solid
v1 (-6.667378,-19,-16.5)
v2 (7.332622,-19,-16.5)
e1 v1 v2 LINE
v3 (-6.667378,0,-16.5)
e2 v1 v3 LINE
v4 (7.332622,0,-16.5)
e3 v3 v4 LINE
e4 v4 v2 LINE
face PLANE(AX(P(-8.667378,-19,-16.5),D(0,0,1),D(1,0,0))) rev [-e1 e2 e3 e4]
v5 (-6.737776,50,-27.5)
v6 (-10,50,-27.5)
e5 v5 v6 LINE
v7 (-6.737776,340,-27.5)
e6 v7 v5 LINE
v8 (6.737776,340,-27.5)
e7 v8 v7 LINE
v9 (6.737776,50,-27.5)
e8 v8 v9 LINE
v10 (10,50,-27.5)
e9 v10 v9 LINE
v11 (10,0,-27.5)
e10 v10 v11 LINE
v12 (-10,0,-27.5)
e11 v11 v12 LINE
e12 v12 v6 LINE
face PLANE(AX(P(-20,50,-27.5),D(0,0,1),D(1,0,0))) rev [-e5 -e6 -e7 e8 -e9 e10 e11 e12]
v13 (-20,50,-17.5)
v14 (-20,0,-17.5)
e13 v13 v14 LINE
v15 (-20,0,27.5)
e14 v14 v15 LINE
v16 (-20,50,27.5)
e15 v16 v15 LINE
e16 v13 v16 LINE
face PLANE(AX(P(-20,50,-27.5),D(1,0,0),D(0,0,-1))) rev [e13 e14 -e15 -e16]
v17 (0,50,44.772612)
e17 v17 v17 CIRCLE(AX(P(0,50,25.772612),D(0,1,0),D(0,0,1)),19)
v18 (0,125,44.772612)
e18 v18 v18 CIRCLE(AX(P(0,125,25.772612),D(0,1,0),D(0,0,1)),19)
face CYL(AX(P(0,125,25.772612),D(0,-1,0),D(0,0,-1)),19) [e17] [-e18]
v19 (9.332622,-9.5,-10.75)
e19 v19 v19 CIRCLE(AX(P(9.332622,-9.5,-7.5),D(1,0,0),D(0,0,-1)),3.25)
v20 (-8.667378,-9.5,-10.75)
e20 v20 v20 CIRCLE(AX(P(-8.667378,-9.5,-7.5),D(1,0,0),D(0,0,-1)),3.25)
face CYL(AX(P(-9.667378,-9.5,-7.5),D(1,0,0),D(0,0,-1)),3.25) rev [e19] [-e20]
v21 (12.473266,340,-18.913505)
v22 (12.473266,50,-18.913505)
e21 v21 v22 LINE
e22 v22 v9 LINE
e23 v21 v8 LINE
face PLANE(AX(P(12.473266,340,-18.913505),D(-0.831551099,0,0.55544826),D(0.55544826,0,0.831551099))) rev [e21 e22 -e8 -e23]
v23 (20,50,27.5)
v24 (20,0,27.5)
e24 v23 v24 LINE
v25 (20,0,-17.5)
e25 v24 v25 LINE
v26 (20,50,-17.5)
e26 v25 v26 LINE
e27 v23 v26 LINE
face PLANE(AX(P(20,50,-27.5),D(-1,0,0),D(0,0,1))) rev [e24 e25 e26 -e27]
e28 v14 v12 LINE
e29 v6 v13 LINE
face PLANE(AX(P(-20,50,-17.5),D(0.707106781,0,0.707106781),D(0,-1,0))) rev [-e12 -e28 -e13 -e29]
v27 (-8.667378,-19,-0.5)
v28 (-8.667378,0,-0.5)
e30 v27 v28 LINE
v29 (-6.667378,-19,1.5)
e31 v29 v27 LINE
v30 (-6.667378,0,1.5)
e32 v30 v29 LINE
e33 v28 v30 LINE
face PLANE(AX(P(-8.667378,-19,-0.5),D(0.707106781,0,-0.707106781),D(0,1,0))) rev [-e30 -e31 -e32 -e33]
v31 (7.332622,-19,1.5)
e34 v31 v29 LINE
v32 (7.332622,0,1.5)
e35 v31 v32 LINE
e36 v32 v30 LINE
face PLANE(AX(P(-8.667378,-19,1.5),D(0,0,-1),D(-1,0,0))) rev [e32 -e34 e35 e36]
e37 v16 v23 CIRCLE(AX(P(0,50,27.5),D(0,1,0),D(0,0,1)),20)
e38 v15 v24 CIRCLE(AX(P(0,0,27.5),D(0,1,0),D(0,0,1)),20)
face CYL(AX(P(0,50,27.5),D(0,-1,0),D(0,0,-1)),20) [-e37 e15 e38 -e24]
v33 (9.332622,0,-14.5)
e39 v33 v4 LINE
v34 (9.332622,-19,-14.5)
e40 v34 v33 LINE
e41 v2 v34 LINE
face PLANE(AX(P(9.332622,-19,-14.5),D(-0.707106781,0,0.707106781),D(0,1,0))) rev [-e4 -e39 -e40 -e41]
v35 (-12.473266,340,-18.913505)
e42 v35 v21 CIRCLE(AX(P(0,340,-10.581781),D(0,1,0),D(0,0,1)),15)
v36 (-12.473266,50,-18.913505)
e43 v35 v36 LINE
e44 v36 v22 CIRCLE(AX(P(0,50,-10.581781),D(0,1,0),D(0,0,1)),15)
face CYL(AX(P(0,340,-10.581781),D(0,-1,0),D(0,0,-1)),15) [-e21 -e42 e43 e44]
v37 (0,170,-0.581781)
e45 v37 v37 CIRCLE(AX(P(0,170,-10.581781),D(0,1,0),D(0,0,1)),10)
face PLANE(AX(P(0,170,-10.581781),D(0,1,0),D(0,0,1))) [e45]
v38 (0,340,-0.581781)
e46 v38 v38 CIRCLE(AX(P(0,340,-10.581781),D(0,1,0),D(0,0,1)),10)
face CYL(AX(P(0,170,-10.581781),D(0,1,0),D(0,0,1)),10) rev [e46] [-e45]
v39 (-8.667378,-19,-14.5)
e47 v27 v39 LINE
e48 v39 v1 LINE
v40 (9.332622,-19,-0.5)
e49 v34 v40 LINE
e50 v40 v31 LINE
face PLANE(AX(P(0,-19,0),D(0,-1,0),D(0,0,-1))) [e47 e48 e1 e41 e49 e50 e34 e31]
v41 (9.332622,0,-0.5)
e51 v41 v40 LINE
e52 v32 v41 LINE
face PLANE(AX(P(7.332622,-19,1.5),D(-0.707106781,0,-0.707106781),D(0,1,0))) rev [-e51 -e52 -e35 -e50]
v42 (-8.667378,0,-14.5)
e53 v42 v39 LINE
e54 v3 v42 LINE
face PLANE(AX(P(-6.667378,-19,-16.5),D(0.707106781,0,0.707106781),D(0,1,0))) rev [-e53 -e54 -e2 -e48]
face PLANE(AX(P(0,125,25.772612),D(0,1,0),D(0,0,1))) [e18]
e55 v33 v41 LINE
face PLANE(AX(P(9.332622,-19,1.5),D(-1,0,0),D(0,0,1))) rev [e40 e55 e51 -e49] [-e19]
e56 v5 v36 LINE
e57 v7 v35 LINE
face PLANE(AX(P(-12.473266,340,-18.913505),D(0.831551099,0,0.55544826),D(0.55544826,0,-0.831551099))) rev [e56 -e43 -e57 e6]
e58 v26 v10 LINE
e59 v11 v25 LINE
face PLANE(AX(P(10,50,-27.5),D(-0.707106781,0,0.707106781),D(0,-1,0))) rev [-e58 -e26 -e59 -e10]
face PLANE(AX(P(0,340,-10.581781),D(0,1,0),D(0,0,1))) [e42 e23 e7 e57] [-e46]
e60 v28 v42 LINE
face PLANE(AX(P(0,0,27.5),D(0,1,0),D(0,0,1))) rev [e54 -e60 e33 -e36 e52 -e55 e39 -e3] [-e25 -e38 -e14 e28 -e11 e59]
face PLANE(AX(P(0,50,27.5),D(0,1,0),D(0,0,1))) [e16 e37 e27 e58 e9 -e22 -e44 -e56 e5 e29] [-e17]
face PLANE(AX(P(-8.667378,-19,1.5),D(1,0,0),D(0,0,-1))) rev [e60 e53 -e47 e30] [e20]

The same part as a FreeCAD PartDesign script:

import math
import FreeCAD as App
import Part
import Sketcher
Q = App.Units.Quantity


def edges_at(feature, points):
    """Names of the edges that pass closest to the given points."""
    edges = feature.Shape.Edges
    near = lambda p: min(range(len(edges)), key=lambda i: edges[i].distToShape(Part.Vertex(*p))[0])
    return sorted({f"Edge{near(p) + 1}" for p in points})


def add_polygon(sketch, points):
    """Adds a closed chain of lines whose ends are joined by coincident constraints."""
    first, n = sketch.GeometryCount, len(points)
    for a, b in zip(points, points[1:] + points[:1]):
        sketch.addGeometry(Part.LineSegment(App.Vector(*a, 0), App.Vector(*b, 0)), False)
    for i in range(n):
        sketch.addConstraint(Sketcher.Constraint("Coincident", first + i, 2, first + (i + 1) % n, 1))

doc = App.newDocument("Part")
body = doc.addObject("PartDesign::Body", "Body")

# Sketch on XZ plane
sketch1 = body.newObject("Sketcher::SketchObject", "Sketch")
sketch1.AttachmentSupport = (doc.getObject("XZ_Plane"), [""])
sketch1.MapMode = "FlatFace"
sketch1.addGeometry([
    Part.LineSegment(App.Vector(20, -27.5, 0), App.Vector(-20, -27.5, 0)),
    Part.LineSegment(App.Vector(-20, -27.5, 0), App.Vector(-20, 27.5, 0)),
    Part.ArcOfCircle(Part.Circle(App.Vector(0, 27.5, 0), App.Vector(0, 0, 1), 20), math.radians(0), math.radians(180)),
    Part.LineSegment(App.Vector(20, 27.5, 0), App.Vector(20, -27.5, 0)),
], False)
sketch1.addConstraint([
    Sketcher.Constraint("Coincident", 0, 2, 1, 1),
    Sketcher.Constraint("Tangent", 1, 2, 2, 2),
    Sketcher.Constraint("Tangent", 2, 1, 3, 1),
    Sketcher.Constraint("Coincident", 3, 2, 0, 1),
    Sketcher.Constraint("Horizontal", 0),
    Sketcher.Constraint("Vertical", 1),
    Sketcher.Constraint("Vertical", 3),
    Sketcher.Constraint("Symmetric", 0, 2, 2, 1, -1, 1),
    Sketcher.Constraint("Radius", 2, Q("20 mm")),
    Sketcher.Constraint("DistanceY", 1, 1, 1, 2, Q("55 mm")),
])
pad1 = body.newObject("PartDesign::Pad", "Pad")
pad1.Profile = sketch1
pad1.Length = 50
pad1.Reversed = True

# Sketch on XZ plane
sketch2 = body.newObject("Sketcher::SketchObject", "Sketch001")
sketch2.AttachmentSupport = (doc.getObject("XZ_Plane"), [""])
sketch2.MapMode = "FlatFace"
sketch2.AttachmentOffset = App.Placement(App.Vector(0, 0, -50), App.Rotation())
sketch2.addGeometry(Part.Circle(App.Vector(0, 25.772612, 0), App.Vector(0, 0, 1), 19), False)
sketch2.addConstraint([
    Sketcher.Constraint("PointOnObject", 0, 3, -2),
    Sketcher.Constraint("Diameter", 0, Q("38 mm")),
    Sketcher.Constraint("DistanceY", -1, 1, 0, 3, Q("25.772612 mm")),
])
pad2 = body.newObject("PartDesign::Pad", "Pad001")
pad2.Profile = sketch2
pad2.Length = 75
pad2.Reversed = True

# Sketch on XZ plane
sketch3 = body.newObject("Sketcher::SketchObject", "Sketch002")
sketch3.AttachmentSupport = (doc.getObject("XZ_Plane"), [""])
sketch3.MapMode = "FlatFace"
sketch3.AttachmentOffset = App.Placement(App.Vector(0, 0, -50), App.Rotation())
sketch3.addGeometry([
    Part.LineSegment(App.Vector(-6.737776, -27.5, 0), App.Vector(-12.473266, -18.913505, 0)),
    Part.ArcOfCircle(Part.Circle(App.Vector(0, -10.581781, 0), App.Vector(0, 0, 1), 15), math.radians(-33.741595), math.radians(213.741595)),
    Part.LineSegment(App.Vector(12.473266, -18.913505, 0), App.Vector(6.737776, -27.5, 0)),
    Part.LineSegment(App.Vector(6.737776, -27.5, 0), App.Vector(-6.737776, -27.5, 0)),
], False)
sketch3.addConstraint([
    Sketcher.Constraint("Tangent", 0, 2, 1, 2),
    Sketcher.Constraint("Tangent", 1, 1, 2, 1),
    Sketcher.Constraint("Coincident", 2, 2, 3, 1),
    Sketcher.Constraint("Coincident", 3, 2, 0, 1),
    Sketcher.Constraint("Horizontal", 3),
    Sketcher.Constraint("Symmetric", 0, 2, 1, 1, -2),
    Sketcher.Constraint("Radius", 1, Q("15 mm")),
    Sketcher.Constraint("DistanceY", 2, 2, -1, 1, Q("27.5 mm")),
    Sketcher.Constraint("DistanceX", 3, 2, 3, 1, Q("13.475552 mm")),
    Sketcher.Constraint("DistanceY", 1, 3, -1, 1, Q("10.581781 mm")),
])
pad3 = body.newObject("PartDesign::Pad", "Pad002")
pad3.Profile = sketch3
pad3.Length = 290
pad3.Reversed = True

# Sketch on XZ plane
sketch4 = body.newObject("Sketcher::SketchObject", "Sketch003")
sketch4.AttachmentSupport = (doc.getObject("XZ_Plane"), [""])
sketch4.MapMode = "FlatFace"
sketch4.AttachmentOffset = App.Placement(App.Vector(0, 0, -340), App.Rotation())
sketch4.addGeometry(Part.Circle(App.Vector(0, -10.581781, 0), App.Vector(0, 0, 1), 10), False)
sketch4.addConstraint([
    Sketcher.Constraint("PointOnObject", 0, 3, -2),
    Sketcher.Constraint("Diameter", 0, Q("20 mm")),
    Sketcher.Constraint("DistanceY", 0, 3, -1, 1, Q("10.581781 mm")),
])
pocket1 = body.newObject("PartDesign::Pocket", "Pocket")
pocket1.Profile = sketch4
pocket1.Length = 170
pocket1.Reversed = True

# Sketch on XZ plane
sketch5 = body.newObject("Sketcher::SketchObject", "Sketch004")
sketch5.AttachmentSupport = (doc.getObject("XZ_Plane"), [""])
sketch5.MapMode = "FlatFace"
add_polygon(sketch5, [(-8.667378, 1.5), (-8.667378, -16.5), (9.332622, -16.5), (9.332622, 1.5)])  # lines 0-3
sketch5.addConstraint([
    Sketcher.Constraint("Vertical", 0),
    Sketcher.Constraint("Horizontal", 1),
    Sketcher.Constraint("Vertical", 2),
    Sketcher.Constraint("Horizontal", 3),
    Sketcher.Constraint("Equal", 3, 0),
    Sketcher.Constraint("DistanceX", 1, 1, 1, 2, Q("18 mm")),
    Sketcher.Constraint("DistanceY", 0, 2, -1, 1, Q("16.5 mm")),
    Sketcher.Constraint("DistanceX", 0, 2, -1, 1, Q("8.667378 mm")),
])
pad4 = body.newObject("PartDesign::Pad", "Pad003")
pad4.Profile = sketch5
pad4.Length = 19

# Sketch on YZ plane
sketch6 = body.newObject("Sketcher::SketchObject", "Sketch005")
sketch6.AttachmentSupport = (doc.getObject("YZ_Plane"), [""])
sketch6.MapMode = "FlatFace"
sketch6.AttachmentOffset = App.Placement(App.Vector(0, 0, 9.332622), App.Rotation())
sketch6.addGeometry(Part.Circle(App.Vector(-9.5, -7.5, 0), App.Vector(0, 0, 1), 3.25), False)
sketch6.addConstraint([
    Sketcher.Constraint("Diameter", 0, Q("6.5 mm")),
    Sketcher.Constraint("DistanceX", 0, 3, -1, 1, Q("9.5 mm")),
    Sketcher.Constraint("DistanceY", 0, 3, -1, 1, Q("7.5 mm")),
])
pocket2 = body.newObject("PartDesign::Pocket", "Pocket001")
pocket2.Profile = sketch6
pocket2.Length = 19
doc.recompute()

chamfer = body.newObject("PartDesign::Chamfer", "Chamfer")
chamfer.Base = (pocket2, edges_at(pocket2, [(-20, 25, -27.5), (20, 25, -27.5)]))
chamfer.Size = 10
doc.recompute()

chamfer2 = body.newObject("PartDesign::Chamfer", "Chamfer001")
chamfer2.Base = (chamfer, edges_at(chamfer, [
    (9.333, -9.5, -16.5),
    (9.333, -9.5, 1.5),
    (-8.667, -9.5, 1.5),
    (-8.667, -9.5, -16.5),
]))
chamfer2.Size = 2

doc.recompute()
